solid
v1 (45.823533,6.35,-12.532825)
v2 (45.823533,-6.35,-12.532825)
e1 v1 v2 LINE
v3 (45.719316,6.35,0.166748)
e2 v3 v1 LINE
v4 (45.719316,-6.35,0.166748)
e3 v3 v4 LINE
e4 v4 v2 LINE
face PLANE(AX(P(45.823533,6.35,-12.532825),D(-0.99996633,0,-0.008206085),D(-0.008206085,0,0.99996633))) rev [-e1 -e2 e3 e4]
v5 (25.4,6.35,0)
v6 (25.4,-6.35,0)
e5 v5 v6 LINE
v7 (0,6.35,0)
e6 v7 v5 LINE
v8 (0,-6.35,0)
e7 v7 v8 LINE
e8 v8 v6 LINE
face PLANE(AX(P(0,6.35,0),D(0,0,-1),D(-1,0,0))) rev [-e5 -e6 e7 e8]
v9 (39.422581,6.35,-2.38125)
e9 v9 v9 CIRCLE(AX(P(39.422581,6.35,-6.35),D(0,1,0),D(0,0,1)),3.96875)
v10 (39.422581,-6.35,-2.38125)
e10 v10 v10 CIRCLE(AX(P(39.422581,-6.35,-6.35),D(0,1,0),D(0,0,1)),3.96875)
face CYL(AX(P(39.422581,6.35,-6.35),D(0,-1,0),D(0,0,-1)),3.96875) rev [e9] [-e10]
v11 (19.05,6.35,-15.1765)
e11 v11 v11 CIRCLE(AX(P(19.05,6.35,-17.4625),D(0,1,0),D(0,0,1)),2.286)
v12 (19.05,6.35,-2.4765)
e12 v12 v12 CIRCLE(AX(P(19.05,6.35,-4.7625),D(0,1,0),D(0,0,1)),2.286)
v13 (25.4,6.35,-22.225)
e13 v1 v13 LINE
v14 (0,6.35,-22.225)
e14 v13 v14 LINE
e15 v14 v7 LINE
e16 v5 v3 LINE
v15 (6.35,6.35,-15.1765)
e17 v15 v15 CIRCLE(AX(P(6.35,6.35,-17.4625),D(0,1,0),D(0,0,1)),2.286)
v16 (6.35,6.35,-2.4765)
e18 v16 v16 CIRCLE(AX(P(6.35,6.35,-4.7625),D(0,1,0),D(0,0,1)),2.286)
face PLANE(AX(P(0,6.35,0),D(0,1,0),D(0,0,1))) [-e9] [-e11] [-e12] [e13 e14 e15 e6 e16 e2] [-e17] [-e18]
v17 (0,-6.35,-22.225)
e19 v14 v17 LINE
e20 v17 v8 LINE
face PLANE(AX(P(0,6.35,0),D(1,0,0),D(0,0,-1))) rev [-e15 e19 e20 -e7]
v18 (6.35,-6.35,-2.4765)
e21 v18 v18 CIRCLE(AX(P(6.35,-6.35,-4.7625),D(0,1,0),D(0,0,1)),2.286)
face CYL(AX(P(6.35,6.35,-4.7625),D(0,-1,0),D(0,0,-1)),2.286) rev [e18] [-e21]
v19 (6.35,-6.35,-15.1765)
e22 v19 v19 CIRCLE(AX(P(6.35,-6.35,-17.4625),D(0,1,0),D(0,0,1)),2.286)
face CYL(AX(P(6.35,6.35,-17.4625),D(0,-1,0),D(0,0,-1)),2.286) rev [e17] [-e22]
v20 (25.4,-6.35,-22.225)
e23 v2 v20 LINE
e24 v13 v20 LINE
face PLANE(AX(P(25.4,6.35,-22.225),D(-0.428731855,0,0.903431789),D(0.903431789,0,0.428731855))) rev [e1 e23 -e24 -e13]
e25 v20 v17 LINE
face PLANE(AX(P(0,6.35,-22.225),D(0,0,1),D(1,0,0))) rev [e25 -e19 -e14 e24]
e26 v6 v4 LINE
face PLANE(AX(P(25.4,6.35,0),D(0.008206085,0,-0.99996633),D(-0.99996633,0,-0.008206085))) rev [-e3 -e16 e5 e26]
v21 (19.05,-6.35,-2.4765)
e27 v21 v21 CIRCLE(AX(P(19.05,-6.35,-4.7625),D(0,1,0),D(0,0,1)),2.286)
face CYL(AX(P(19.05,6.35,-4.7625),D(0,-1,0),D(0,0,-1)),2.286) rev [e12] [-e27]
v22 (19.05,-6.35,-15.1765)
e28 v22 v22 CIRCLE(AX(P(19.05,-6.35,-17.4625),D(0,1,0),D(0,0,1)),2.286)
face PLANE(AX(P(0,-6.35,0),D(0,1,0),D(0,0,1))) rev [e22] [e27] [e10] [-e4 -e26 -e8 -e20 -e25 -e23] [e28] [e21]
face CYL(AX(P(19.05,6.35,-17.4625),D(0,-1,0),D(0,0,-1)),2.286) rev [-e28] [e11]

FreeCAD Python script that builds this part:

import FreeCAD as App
import Part
import Sketcher

V = App.Vector
Q = App.Units.Quantity


def add_polygon(sketch, points):
    """Adds a closed chain of lines whose ends are joined by coincident constraints."""
    first, n = sketch.GeometryCount, len(points)
    for a, b in zip(points, points[1:] + points[:1]):
        sketch.addGeometry(Part.LineSegment(App.Vector(*a, 0), App.Vector(*b, 0)), False)
    for i in range(n):
        sketch.addConstraint(Sketcher.Constraint("Coincident", first + i, 2, first + (i + 1) % n, 1))

doc = App.newDocument("Part")
body = doc.addObject("PartDesign::Body", "Body")

# Sketch on XZ plane
sketch1 = body.newObject("Sketcher::SketchObject", "Sketch")
sketch1.AttachmentSupport = (doc.getObject("XZ_Plane"), [""])
sketch1.MapMode = "FlatFace"
add_polygon(sketch1, [(45.8, -12.5), (25.4, -22.2), (0, -22.2), (0, 0), (25.4, 0), (45.7, 0.2)])  # lines 0-5
sketch1.addGeometry(Part.Circle(V(39.4, -6.3, 0), V(0, 0, 1), 4), False)  # 6
sketch1.addGeometry(Part.Circle(V(19.1, -4.8, 0), V(0, 0, 1), 2.3), False)  # 7
sketch1.addGeometry(Part.Circle(V(6.3, -4.8, 0), V(0, 0, 1), 2.3), False)  # 8
sketch1.addGeometry(Part.Circle(V(19.1, -17.5, 0), V(0, 0, 1), 2.3), False)  # 9
sketch1.addGeometry(Part.Circle(V(6.3, -17.5, 0), V(0, 0, 1), 2.3), False)  # 10
sketch1.addConstraint([
    Sketcher.Constraint("Horizontal", 1),
    Sketcher.Constraint("Vertical", 2),
    Sketcher.Constraint("Horizontal", 3),
    Sketcher.Constraint("Coincident", 2, 2, -1, 1),
    Sketcher.Constraint("Equal", 7, 8),
    Sketcher.Constraint("Equal", 8, 9),
    Sketcher.Constraint("Equal", 9, 10),
    Sketcher.Constraint("Perpendicular", 4, 5),
    Sketcher.Constraint("Horizontal", 7, 3, 8, 3),
    Sketcher.Constraint("Horizontal", 9, 3, 10, 3),
    Sketcher.Constraint("Vertical", 7, 3, 9, 3),
    Sketcher.Constraint("Vertical", 8, 3, 10, 3),
    Sketcher.Constraint("Vertical", 0, 2, 3, 2),
    Sketcher.Constraint("Diameter", 7, Q("0.18 in")),
    Sketcher.Constraint("DistanceX", 1, 2, 1, 1, Q("1 in")),
    Sketcher.Constraint("Diameter", 6, Q("0.3125 in")),
    Sketcher.Constraint("Distance", 4, Q("0.8 in")),
    Sketcher.Constraint("Distance", 5, Q("0.5 in")),
    Sketcher.Constraint("DistanceX", 8, 3, 7, 3, Q("0.5 in")),
    Sketcher.Constraint("DistanceY", 9, 3, 7, 3, Q("0.5 in")),
    Sketcher.Constraint("DistanceY", 2, 1, 2, 2, Q("0.875 in")),
    Sketcher.Constraint("DistanceY", 6, 3, -1, 1, Q("0.25 in")),
    Sketcher.Constraint("DistanceX", -1, 1, 7, 3, Q("0.75 in")),
    Sketcher.Constraint("DistanceY", 7, 3, -1, 1, Q("0.1875 in")),
    Sketcher.Constraint("DistanceX", -1, 1, 6, 3, Q("39.422581 mm")),
    Sketcher.Constraint("Distance", 0, Q("22.606613 mm")),
])
pad1 = body.newObject("PartDesign::Pad", "Pad")
pad1.Profile = sketch1
pad1.Length = Q("0.5 in")
pad1.Midplane = True

doc.recompute()
